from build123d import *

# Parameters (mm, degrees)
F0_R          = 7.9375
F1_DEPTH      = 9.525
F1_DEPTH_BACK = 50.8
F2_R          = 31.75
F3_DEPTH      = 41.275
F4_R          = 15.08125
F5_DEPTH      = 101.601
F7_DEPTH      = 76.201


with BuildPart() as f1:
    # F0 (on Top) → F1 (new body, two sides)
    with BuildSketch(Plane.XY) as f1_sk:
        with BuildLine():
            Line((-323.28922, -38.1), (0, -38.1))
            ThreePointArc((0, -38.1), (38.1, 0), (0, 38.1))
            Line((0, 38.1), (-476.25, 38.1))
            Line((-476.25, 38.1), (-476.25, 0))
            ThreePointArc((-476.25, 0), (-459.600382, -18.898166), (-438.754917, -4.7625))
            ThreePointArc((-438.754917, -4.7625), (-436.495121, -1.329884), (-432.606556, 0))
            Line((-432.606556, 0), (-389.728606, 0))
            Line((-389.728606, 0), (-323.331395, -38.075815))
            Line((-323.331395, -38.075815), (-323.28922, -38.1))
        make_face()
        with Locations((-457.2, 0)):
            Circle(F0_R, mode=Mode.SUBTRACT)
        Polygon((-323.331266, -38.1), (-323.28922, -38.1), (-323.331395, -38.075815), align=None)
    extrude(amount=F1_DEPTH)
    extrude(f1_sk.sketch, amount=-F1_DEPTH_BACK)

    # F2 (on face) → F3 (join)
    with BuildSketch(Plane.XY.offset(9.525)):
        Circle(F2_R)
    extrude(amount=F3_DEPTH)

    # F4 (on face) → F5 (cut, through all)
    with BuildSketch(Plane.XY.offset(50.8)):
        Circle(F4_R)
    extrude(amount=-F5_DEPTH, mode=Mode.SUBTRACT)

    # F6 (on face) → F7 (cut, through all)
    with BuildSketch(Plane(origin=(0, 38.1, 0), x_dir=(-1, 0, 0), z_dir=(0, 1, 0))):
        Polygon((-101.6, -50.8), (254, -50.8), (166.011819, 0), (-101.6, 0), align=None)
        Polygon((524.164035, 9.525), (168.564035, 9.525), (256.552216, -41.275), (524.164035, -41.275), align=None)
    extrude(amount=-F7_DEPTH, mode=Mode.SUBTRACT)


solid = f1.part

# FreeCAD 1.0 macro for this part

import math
import FreeCAD as App
import Part
import Sketcher

V = App.Vector
Q = App.Units.Quantity


def add_polygon(sketch, points):
    """Adds a closed chain of lines whose ends are joined by coincident constraints."""
    first, n = sketch.GeometryCount, len(points)
    for a, b in zip(points, points[1:] + points[:1]):
        sketch.addGeometry(Part.LineSegment(App.Vector(*a, 0), App.Vector(*b, 0)), False)
    for i in range(n):
        sketch.addConstraint(Sketcher.Constraint("Coincident", first + i, 2, first + (i + 1) % n, 1))

doc = App.newDocument("Part")
body = doc.addObject("PartDesign::Body", "Body")

# Sketch on XY plane
sketch1 = body.newObject("Sketcher::SketchObject", "Sketch")
sketch1.AttachmentSupport = (doc.getObject("XY_Plane"), [""])
sketch1.MapMode = "FlatFace"
sketch1.addGeometry(Part.ArcOfCircle(Part.Circle(V(0, 0, 0), V(0, 0, 1), 38.1), math.radians(-90), math.radians(90)), False)
sketch1.addGeometry(Part.LineSegment(V(0, 38.1, 0), V(-476.25, 38.1, 0)), False)
sketch1.addGeometry(Part.LineSegment(V(-476.25, 38.1, 0), V(-476.25, 0, 0)), False)
sketch1.addGeometry(Part.ArcOfCircle(Part.Circle(V(-457.2, 0, 0), V(0, 0, 1), 19.05), math.radians(179.999999), math.radians(345.522489)), False)
sketch1.addGeometry(Part.ArcOfCircle(Part.Circle(V(-432.606557, -6.349999, 0), V(0, 0, 1), 6.349999), math.radians(89.999995), math.radians(165.522494)), False)
sketch1.addGeometry(Part.LineSegment(V(-432.606556, 0, 0), V(-389.728606, 0, 0)), False)
sketch1.addGeometry(Part.LineSegment(V(-389.728606, 0, 0), V(-323.331395, -38.075815, 0)), False)
sketch1.addGeometry(Part.LineSegment(V(-323.331395, -38.075815, 0), V(-323.331266, -38.1, 0)), False)
sketch1.addGeometry(Part.LineSegment(V(-323.331266, -38.1, 0), V(0, -38.1, 0)), False)
sketch1.addGeometry(Part.Circle(V(-457.2, 0, 0), V(0, 0, 1), 7.9375), False)
sketch1.addConstraint(Sketcher.Constraint("Tangent", 0, 2, 1, 1))
sketch1.addConstraint(Sketcher.Constraint("Coincident", 1, 2, 2, 1))
sketch1.addConstraint(Sketcher.Constraint("Tangent", 2, 2, 3, 1))
sketch1.addConstraint(Sketcher.Constraint("Tangent", 3, 2, 4, 2))
sketch1.addConstraint(Sketcher.Constraint("Tangent", 4, 1, 5, 1))
sketch1.addConstraint(Sketcher.Constraint("Coincident", 5, 2, 6, 1))
sketch1.addConstraint(Sketcher.Constraint("Coincident", 6, 2, 7, 1))
sketch1.addConstraint(Sketcher.Constraint("Coincident", 7, 2, 8, 1))
sketch1.addConstraint(Sketcher.Constraint("Tangent", 8, 2, 0, 1))
sketch1.addConstraint(Sketcher.Constraint("Horizontal", 1))
sketch1.addConstraint(Sketcher.Constraint("Vertical", 2))
sketch1.addConstraint(Sketcher.Constraint("Horizontal", 5))
sketch1.addConstraint(Sketcher.Constraint("Horizontal", 8))
sketch1.addConstraint(Sketcher.Constraint("Coincident", 0, 3, -1, 1))
sketch1.addConstraint(Sketcher.Constraint("Coincident", 9, 3, 3, 3))
sketch1.addConstraint(Sketcher.Constraint("PointOnObject", 3, 3, -1))
sketch1.addConstraint(Sketcher.Constraint("PointOnObject", 4, 1, -1))
sketch1.addConstraint(Sketcher.Constraint("Radius", 0, Q("1.5 in")))
sketch1.addConstraint(Sketcher.Constraint("Radius", 3, Q("0.75 in")))
sketch1.addConstraint(Sketcher.Constraint("Radius", 4, Q("0.25 in")))
sketch1.addConstraint(Sketcher.Constraint("Diameter", 9, Q("0.625 in")))
sketch1.addConstraint(Sketcher.Constraint("DistanceX", 3, 3, -1, 1, Q("18 in")))
sketch1.addConstraint(Sketcher.Constraint("DistanceX", 5, 1, 5, 2, Q("42.87795 mm")))
sketch1.addConstraint(Sketcher.Constraint("DistanceX", 8, 1, 8, 2, Q("323.331266 mm")))
sketch1.addConstraint(Sketcher.Constraint("DistanceX", 5, 2, 6, 2, Q("66.397211 mm")))
sketch1.addConstraint(Sketcher.Constraint("Distance", 6, Q("76.539907 mm")))
pad1 = body.newObject("PartDesign::Pad", "Pad")
pad1.Profile = sketch1
pad1.Type = "TwoLengths"
pad1.Length = Q("0.375 in")
pad1.Length2 = Q("2 in")

# Sketch on XY plane
sketch2 = body.newObject("Sketcher::SketchObject", "Sketch001")
sketch2.AttachmentSupport = (doc.getObject("XY_Plane"), [""])
sketch2.MapMode = "FlatFace"
sketch2.AttachmentOffset = App.Placement(V(0, 0, 0.375 * 25.4), App.Rotation())
sketch2.addGeometry(Part.Circle(V(0, 0, 0), V(0, 0, 1), 31.75), False)
sketch2.addConstraint(Sketcher.Constraint("Coincident", 0, 3, -1, 1))
sketch2.addConstraint(Sketcher.Constraint("Diameter", 0, Q("2.5 in")))
pad2 = body.newObject("PartDesign::Pad", "Pad001")
pad2.Profile = sketch2
pad2.Length = Q("1.625 in")

# Sketch on XY plane
sketch3 = body.newObject("Sketcher::SketchObject", "Sketch002")
sketch3.AttachmentSupport = (doc.getObject("XY_Plane"), [""])
sketch3.MapMode = "FlatFace"
sketch3.AttachmentOffset = App.Placement(V(0, 0, 2 * 25.4), App.Rotation())
sketch3.addGeometry(Part.Circle(V(0, 0, 0), V(0, 0, 1), 15.08125), False)
sketch3.addConstraint(Sketcher.Constraint("Coincident", 0, 3, -1, 1))
sketch3.addConstraint(Sketcher.Constraint("Diameter", 0, Q("1.1875 in")))
pocket1 = body.newObject("PartDesign::Pocket", "Pocket")
pocket1.Profile = sketch3
pocket1.Type = "ThroughAll"

# Sketch on XZ plane
sketch4 = body.newObject("Sketcher::SketchObject", "Sketch003")
sketch4.AttachmentSupport = (doc.getObject("XZ_Plane"), [""])
sketch4.MapMode = "FlatFace"
sketch4.AttachmentOffset = App.Placement(V(0, 0, -1.5 * 25.4), App.Rotation())
add_polygon(sketch4, [(101.6, -50.8), (-254, -50.8), (-166.011819, 0), (101.6, 0)])  # lines 0-3
add_polygon(sketch4, [(-524.164035, 9.525), (-168.564035, 9.525), (-256.552216, -41.275), (-524.164035, -41.275)])  # lines 4-7
sketch4.addConstraint(Sketcher.Constraint("Horizontal", 0))
sketch4.addConstraint(Sketcher.Constraint("Horizontal", 2))
sketch4.addConstraint(Sketcher.Constraint("Vertical", 3))
sketch4.addConstraint(Sketcher.Constraint("Horizontal", 4))
sketch4.addConstraint(Sketcher.Constraint("Horizontal", 6))
sketch4.addConstraint(Sketcher.Constraint("Vertical", 7))
sketch4.addConstraint(Sketcher.Constraint("PointOnObject", 1, 2, -1))
sketch4.addConstraint(Sketcher.Constraint("Parallel", 1, 5))
sketch4.addConstraint(Sketcher.Constraint("Equal", 0, 4))
sketch4.addConstraint(Sketcher.Constraint("Equal", 2, 6))
sketch4.addConstraint(Sketcher.Constraint("DistanceX", 0, 2, 0, 1, Q("14 in")))
sketch4.addConstraint(Sketcher.Constraint("DistanceY", 3, 2, 3, 1, Q("2 in")))
sketch4.addConstraint(Sketcher.Constraint("Distance", 1, Q("4 in")))
sketch4.addConstraint(Sketcher.Constraint("DistanceX", 0, 2, -1, 1, Q("10 in")))
sketch4.addConstraint(Sketcher.Constraint("DistanceY", -1, 1, 4, 2, Q("0.375 in")))
sketch4.addConstraint(Sketcher.Constraint("DistanceX", 4, 2, -1, 1, Q("168.564035 mm")))
pocket2 = body.newObject("PartDesign::Pocket", "Pocket001")
pocket2.Profile = sketch4
pocket2.Type = "ThroughAll"
pocket2.Reversed = True

doc.recompute()
